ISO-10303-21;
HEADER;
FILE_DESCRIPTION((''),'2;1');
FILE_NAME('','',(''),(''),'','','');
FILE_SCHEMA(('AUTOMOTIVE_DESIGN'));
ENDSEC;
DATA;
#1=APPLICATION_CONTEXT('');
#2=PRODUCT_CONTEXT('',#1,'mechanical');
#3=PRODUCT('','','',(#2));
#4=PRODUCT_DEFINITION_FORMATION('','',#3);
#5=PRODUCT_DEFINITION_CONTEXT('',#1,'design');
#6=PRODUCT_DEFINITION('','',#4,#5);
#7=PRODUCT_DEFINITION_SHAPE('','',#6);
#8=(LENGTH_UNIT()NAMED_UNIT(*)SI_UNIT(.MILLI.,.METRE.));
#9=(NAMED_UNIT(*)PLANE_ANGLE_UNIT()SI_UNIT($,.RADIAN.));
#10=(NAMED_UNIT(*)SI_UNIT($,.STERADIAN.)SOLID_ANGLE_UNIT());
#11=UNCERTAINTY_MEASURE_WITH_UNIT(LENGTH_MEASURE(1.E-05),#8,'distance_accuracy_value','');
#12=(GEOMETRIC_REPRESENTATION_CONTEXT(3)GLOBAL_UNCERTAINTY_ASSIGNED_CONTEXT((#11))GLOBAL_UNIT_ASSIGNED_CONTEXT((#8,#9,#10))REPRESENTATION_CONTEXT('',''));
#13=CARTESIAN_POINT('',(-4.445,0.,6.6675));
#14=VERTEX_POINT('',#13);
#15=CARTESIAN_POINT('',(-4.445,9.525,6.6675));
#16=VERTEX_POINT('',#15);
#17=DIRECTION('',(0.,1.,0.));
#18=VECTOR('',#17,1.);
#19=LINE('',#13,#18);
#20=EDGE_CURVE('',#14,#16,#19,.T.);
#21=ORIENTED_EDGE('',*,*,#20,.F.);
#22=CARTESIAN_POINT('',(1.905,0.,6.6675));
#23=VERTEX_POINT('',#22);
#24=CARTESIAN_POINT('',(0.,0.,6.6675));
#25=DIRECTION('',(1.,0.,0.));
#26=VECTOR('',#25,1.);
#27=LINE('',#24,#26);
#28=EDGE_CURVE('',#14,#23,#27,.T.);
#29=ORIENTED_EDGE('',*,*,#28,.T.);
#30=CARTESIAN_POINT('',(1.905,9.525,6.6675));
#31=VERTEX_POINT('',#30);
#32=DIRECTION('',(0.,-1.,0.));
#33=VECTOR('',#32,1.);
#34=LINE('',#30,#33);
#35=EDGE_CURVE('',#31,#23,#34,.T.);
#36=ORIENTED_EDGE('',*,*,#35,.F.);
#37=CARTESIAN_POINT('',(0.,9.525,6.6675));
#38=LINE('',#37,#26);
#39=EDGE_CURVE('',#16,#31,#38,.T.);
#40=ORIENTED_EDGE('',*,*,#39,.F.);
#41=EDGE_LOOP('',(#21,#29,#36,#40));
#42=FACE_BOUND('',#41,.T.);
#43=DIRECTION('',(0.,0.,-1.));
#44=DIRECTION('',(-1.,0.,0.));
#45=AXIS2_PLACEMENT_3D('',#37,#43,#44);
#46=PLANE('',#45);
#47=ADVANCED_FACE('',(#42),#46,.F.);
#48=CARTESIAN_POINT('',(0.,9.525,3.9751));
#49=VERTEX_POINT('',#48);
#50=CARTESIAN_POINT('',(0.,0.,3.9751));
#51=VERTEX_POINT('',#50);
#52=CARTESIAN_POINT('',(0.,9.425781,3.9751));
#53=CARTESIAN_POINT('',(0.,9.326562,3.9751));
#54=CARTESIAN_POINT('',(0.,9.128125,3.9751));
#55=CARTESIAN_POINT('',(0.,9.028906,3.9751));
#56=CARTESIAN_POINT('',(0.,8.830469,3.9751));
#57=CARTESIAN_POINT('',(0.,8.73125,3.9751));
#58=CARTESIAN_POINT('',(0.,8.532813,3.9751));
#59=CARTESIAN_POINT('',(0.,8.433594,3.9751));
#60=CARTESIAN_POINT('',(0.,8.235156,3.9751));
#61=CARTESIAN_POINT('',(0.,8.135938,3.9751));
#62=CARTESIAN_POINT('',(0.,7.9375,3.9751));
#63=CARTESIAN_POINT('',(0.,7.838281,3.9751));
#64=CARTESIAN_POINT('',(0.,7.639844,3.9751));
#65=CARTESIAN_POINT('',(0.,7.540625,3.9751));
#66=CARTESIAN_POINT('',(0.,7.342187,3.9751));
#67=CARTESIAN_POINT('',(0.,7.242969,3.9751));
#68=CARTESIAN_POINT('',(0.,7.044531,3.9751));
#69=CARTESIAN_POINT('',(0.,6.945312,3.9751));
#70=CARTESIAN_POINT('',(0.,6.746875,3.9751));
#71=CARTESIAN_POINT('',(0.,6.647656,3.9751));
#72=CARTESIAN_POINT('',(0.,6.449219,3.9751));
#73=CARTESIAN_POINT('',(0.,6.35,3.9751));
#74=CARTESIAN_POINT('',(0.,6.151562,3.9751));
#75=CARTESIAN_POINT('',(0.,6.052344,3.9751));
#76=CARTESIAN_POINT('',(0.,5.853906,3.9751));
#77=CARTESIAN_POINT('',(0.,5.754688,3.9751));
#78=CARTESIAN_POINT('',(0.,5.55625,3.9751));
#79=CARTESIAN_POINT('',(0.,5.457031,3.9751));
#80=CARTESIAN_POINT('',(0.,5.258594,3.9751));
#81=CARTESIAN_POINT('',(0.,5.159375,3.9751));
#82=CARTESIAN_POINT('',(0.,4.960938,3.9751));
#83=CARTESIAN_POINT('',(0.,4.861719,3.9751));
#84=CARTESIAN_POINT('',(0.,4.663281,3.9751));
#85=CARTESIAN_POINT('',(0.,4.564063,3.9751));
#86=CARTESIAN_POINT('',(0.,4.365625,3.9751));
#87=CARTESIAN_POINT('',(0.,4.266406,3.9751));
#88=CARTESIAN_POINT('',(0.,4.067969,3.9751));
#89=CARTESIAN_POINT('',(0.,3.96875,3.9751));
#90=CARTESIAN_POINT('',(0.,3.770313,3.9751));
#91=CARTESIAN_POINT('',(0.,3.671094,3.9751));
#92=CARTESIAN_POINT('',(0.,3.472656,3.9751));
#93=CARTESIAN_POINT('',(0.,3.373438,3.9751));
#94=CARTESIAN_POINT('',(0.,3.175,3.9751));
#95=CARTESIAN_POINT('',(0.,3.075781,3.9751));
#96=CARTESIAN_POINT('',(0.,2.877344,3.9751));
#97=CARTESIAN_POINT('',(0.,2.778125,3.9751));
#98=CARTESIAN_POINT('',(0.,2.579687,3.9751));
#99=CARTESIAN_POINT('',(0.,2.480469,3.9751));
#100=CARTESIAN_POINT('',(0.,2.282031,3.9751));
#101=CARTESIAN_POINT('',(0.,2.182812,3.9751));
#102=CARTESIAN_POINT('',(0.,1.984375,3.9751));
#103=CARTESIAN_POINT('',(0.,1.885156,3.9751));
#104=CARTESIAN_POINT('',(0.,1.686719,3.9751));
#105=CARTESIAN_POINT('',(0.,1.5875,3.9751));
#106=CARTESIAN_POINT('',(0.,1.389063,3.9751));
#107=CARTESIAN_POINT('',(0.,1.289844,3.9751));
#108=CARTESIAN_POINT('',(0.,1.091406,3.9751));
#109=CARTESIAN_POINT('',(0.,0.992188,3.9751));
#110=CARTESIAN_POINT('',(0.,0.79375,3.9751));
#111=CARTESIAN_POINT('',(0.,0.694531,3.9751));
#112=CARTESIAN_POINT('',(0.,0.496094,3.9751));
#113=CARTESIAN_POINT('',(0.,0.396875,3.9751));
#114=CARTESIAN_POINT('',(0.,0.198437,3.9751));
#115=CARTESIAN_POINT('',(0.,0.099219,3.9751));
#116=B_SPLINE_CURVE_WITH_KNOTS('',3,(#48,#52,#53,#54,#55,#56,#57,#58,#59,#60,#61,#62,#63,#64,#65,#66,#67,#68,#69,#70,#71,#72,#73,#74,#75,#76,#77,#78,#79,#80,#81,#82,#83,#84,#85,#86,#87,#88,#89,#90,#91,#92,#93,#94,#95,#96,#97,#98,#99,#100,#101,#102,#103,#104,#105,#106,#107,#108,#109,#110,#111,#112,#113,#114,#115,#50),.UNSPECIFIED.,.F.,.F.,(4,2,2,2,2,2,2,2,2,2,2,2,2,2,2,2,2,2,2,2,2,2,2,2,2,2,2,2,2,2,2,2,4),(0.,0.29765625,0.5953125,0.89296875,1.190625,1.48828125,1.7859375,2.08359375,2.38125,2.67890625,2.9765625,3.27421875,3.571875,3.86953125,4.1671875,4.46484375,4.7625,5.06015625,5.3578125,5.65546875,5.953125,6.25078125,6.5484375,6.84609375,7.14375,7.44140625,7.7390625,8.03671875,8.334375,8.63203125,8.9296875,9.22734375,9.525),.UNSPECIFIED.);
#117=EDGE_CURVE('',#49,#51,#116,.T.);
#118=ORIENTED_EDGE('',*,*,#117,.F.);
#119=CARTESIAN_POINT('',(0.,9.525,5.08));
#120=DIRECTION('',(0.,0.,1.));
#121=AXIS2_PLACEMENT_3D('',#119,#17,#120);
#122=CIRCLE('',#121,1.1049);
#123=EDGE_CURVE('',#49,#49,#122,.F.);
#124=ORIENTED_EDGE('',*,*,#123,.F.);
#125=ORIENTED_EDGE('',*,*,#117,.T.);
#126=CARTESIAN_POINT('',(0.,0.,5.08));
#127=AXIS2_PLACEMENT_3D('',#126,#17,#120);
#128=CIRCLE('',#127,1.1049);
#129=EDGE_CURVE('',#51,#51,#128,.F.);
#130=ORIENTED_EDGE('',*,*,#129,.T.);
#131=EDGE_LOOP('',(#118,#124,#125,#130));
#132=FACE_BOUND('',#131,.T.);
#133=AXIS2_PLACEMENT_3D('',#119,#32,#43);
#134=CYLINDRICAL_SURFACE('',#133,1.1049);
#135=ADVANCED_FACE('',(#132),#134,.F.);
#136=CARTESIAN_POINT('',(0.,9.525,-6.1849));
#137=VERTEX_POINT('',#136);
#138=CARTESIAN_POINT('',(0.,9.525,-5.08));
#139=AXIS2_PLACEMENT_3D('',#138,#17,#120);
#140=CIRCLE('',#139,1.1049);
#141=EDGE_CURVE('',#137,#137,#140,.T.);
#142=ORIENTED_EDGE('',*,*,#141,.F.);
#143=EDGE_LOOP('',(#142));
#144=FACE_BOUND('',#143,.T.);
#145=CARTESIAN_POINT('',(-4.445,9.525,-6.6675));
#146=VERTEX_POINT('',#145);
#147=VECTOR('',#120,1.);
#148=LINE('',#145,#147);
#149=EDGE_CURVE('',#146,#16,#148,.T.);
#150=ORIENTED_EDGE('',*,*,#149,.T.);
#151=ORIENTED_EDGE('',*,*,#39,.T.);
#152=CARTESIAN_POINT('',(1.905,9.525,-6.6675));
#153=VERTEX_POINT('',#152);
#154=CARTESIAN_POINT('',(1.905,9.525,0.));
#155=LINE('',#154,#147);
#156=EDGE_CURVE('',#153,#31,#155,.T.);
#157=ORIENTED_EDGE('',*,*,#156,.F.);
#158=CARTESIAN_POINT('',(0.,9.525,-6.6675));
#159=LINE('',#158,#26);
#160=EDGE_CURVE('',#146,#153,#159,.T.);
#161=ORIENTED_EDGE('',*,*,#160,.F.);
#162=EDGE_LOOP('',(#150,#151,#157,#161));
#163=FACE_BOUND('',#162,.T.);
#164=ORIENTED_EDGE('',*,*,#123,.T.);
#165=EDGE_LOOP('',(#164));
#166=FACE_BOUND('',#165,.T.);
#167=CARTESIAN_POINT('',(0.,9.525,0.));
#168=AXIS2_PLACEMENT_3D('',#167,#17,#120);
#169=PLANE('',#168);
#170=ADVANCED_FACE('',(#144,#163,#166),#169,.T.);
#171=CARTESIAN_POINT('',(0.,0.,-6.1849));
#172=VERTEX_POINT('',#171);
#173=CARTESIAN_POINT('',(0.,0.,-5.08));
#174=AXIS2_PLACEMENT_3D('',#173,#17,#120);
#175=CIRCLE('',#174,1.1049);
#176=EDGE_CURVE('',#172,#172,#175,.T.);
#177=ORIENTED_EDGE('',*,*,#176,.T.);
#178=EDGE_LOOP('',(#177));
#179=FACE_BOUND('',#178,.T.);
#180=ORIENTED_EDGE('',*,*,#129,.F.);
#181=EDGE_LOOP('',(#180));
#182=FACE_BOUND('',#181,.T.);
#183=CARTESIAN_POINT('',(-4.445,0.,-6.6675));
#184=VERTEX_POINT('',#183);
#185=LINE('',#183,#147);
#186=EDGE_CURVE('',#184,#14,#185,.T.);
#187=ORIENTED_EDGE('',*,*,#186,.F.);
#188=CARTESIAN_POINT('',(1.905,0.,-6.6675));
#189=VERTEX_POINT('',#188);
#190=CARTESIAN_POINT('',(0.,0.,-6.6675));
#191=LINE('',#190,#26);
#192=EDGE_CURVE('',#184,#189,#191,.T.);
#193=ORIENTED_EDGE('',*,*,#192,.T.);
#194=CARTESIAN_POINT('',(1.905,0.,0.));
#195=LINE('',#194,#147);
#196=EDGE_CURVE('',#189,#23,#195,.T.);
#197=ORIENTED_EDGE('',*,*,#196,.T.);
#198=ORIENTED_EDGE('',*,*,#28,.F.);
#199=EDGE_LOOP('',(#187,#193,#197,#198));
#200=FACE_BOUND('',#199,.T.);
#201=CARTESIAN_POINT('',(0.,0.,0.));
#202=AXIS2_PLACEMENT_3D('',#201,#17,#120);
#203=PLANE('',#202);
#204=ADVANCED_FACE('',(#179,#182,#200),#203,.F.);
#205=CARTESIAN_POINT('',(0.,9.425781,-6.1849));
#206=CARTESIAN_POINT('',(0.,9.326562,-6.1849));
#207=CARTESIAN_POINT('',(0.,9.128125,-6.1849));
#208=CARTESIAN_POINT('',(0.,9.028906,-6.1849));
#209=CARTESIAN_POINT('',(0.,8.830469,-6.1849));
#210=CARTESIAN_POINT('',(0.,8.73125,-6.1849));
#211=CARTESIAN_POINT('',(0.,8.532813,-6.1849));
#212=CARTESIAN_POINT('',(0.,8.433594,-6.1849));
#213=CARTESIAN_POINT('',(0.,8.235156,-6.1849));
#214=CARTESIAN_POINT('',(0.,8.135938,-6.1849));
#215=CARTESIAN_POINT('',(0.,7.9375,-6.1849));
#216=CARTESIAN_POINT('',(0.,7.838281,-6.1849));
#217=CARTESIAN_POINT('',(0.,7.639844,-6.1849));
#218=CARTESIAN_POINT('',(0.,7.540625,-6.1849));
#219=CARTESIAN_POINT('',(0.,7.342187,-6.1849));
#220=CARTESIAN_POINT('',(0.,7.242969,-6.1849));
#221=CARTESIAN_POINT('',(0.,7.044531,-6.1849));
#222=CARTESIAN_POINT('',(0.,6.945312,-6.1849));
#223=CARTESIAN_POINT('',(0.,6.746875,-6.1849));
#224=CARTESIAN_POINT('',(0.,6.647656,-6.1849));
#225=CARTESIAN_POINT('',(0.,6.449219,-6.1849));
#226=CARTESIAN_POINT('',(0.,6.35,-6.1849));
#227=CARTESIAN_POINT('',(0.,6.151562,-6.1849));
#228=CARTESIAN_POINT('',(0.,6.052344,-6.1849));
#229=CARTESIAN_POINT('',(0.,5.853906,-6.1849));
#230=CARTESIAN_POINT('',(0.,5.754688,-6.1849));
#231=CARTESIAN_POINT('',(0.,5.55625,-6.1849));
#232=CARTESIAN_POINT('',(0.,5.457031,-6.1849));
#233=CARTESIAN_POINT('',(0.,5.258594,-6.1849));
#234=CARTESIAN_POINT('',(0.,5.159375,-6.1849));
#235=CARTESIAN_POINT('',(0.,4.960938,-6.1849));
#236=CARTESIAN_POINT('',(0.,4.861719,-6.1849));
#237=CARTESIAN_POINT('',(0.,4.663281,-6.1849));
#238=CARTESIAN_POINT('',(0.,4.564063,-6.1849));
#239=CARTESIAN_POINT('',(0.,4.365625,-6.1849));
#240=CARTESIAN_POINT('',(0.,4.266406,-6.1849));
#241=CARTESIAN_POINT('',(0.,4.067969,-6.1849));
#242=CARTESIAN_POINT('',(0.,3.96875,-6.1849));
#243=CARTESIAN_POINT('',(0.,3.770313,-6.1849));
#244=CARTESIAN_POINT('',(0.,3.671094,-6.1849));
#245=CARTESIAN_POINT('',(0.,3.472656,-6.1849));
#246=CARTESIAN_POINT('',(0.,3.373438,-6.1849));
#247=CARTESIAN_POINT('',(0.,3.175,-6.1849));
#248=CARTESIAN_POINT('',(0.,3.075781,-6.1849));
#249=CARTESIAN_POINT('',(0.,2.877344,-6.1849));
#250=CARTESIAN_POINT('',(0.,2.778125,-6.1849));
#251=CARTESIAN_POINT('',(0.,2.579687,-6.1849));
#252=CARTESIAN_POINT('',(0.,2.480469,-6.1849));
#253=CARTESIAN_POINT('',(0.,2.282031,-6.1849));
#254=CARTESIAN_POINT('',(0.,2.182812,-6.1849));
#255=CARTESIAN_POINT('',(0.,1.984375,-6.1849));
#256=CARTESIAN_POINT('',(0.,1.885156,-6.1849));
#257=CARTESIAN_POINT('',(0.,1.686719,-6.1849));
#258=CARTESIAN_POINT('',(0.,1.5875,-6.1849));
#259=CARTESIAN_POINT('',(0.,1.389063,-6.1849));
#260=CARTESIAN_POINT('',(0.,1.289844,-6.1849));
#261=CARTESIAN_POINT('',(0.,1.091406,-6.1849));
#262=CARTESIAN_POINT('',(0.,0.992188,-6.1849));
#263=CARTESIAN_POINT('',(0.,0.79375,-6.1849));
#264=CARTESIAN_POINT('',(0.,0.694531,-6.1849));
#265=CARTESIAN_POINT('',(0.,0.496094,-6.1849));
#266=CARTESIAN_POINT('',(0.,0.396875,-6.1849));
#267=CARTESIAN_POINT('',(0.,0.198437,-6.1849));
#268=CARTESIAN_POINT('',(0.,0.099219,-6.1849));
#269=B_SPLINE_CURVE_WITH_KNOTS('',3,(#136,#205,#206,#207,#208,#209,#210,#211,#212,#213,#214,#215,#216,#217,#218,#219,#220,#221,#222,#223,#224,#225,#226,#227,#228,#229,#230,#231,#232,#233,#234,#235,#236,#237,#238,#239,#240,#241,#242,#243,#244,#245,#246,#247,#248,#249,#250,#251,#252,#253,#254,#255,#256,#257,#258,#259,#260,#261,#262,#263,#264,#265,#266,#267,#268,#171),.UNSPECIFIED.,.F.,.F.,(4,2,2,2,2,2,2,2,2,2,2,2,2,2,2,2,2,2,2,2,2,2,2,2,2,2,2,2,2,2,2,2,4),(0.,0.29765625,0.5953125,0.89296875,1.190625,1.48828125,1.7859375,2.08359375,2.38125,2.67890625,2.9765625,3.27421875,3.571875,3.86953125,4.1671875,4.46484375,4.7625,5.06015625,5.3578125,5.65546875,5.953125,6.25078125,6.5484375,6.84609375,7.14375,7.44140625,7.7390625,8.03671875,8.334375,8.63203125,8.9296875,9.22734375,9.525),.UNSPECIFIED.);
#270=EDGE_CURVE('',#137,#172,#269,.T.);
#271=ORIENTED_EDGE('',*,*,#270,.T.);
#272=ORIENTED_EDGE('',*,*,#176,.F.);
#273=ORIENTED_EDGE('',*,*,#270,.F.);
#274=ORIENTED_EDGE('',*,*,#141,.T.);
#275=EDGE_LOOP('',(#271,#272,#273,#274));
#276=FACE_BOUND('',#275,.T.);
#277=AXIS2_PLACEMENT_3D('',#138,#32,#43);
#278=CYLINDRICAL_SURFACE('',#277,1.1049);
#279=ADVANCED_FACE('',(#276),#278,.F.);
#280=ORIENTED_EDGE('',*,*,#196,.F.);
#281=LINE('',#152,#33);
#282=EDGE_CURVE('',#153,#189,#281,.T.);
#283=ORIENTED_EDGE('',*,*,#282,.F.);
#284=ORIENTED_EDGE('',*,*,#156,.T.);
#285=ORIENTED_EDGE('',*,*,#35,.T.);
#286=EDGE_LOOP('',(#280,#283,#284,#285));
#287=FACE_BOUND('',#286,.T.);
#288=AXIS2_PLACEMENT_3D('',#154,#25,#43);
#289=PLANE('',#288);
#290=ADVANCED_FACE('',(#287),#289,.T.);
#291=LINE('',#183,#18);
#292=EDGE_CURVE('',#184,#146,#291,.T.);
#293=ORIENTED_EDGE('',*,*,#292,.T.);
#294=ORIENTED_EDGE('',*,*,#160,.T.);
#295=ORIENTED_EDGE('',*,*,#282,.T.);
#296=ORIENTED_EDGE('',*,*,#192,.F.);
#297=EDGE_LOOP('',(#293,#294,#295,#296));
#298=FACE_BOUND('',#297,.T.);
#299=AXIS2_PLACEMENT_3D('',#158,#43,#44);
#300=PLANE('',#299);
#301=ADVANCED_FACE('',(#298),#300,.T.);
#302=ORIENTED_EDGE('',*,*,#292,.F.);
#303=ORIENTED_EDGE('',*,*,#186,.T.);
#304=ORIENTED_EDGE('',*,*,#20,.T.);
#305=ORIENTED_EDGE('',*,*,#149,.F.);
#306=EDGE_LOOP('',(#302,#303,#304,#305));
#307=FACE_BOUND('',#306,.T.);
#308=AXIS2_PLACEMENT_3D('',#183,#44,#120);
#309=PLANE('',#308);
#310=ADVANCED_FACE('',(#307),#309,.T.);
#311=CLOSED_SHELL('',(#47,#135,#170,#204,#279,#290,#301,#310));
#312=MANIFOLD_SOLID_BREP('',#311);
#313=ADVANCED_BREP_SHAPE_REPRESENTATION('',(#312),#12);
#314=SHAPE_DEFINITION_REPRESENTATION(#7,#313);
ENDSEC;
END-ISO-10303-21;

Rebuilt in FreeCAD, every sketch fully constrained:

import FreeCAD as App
import Part
import Sketcher

V = App.Vector
Q = App.Units.Quantity


def add_polygon(sketch, points):
    """Adds a closed chain of lines whose ends are joined by coincident constraints."""
    first, n = sketch.GeometryCount, len(points)
    for a, b in zip(points, points[1:] + points[:1]):
        sketch.addGeometry(Part.LineSegment(App.Vector(*a, 0), App.Vector(*b, 0)), False)
    for i in range(n):
        sketch.addConstraint(Sketcher.Constraint("Coincident", first + i, 2, first + (i + 1) % n, 1))

doc = App.newDocument("Part")
params = doc.addObject("Spreadsheet::Sheet", "Params")
for row, (alias, value) in enumerate([
    ("sketch1_diameter", "0.087 in"),
    ("sketch1_width", "0.15 in"),
    ("sketch1_height", "0.525 in"),
    ("pad1_length", "0.375 in"),
    ("sketch2_width", "0.1 in"),
    ("sketch2_height", "0.525 in"),
    ("pad2_length", "0.375 in"),
], start=1):
    params.set(f"A{row}", alias)
    params.set(f"B{row}", "=" + value)
    params.setAlias(f"B{row}", alias)

body = doc.addObject("PartDesign::Body", "Body")

# Sketch on XZ plane
sketch1 = body.newObject("Sketcher::SketchObject", "Sketch")
sketch1.AttachmentSupport = (doc.getObject("XZ_Plane"), [""])
sketch1.MapMode = "FlatFace"
add_polygon(sketch1, [(-1.9, -6.7), (-1.9, 6.7), (1.9, 6.7), (1.9, -6.7)])  # lines 0-3
sketch1.addGeometry(Part.Circle(V(0, 5.1, 0), V(0, 0, 1), 1.1), False)  # 4
sketch1.addGeometry(Part.Circle(V(0, -5.1, 0), V(0, 0, 1), 1.1), False)  # 5
sketch1.addConstraint(Sketcher.Constraint("Vertical", 0))
sketch1.addConstraint(Sketcher.Constraint("Horizontal", 1))
sketch1.addConstraint(Sketcher.Constraint("Vertical", 2))
sketch1.addConstraint(Sketcher.Constraint("Horizontal", 3))
sketch1.addConstraint(Sketcher.Constraint("Equal", 4, 5))
sketch1.addConstraint(Sketcher.Constraint("Symmetric", 4, 3, 5, 3, -1, 1))
sketch1.addConstraint(Sketcher.Constraint("Symmetric", 0, 2, 2, 2, -1, 1))
sketch1.addConstraint(Sketcher.Constraint("PointOnObject", 4, 3, -2))
sketch1.addConstraint(Sketcher.Constraint("Diameter", 4, Q("0.087 in")))
sketch1.addConstraint(Sketcher.Constraint("DistanceX", 1, 1, 1, 2, Q("0.15 in")))
sketch1.addConstraint(Sketcher.Constraint("DistanceY", -1, 1, 4, 3, Q("0.2 in")))
sketch1.addConstraint(Sketcher.Constraint("DistanceY", 0, 1, 0, 2, Q("0.525 in")))
sketch1.setExpression("Constraints[12]", "Params.sketch1_diameter")
sketch1.setExpression("Constraints[13]", "Params.sketch1_width")
sketch1.setExpression("Constraints[15]", "Params.sketch1_height")
pad1 = body.newObject("PartDesign::Pad", "Pad")
pad1.Profile = sketch1
pad1.setExpression("Length", "Params.pad1_length")
pad1.Reversed = True

# Sketch on XZ plane
sketch2 = body.newObject("Sketcher::SketchObject", "Sketch001")
sketch2.AttachmentSupport = (doc.getObject("XZ_Plane"), [""])
sketch2.MapMode = "FlatFace"
sketch2.AttachmentOffset = App.Placement(V(0, 0, -0.375 * 25.4), App.Rotation())
add_polygon(sketch2, [(-4.4, -6.7), (-4.4, 6.7), (-1.9, 6.7), (-1.9, -6.7)])  # lines 0-3
sketch2.addConstraint(Sketcher.Constraint("Vertical", 0))
sketch2.addConstraint(Sketcher.Constraint("Horizontal", 1))
sketch2.addConstraint(Sketcher.Constraint("Vertical", 2))
sketch2.addConstraint(Sketcher.Constraint("Horizontal", 3))
sketch2.addConstraint(Sketcher.Constraint("DistanceX", 1, 1, 1, 2, Q("0.1 in")))
sketch2.addConstraint(Sketcher.Constraint("DistanceY", 0, 1, 0, 2, Q("0.525 in")))
sketch2.addConstraint(Sketcher.Constraint("DistanceX", 0, 2, -1, 1, Q("0.175 in")))
sketch2.addConstraint(Sketcher.Constraint("DistanceY", -1, 1, 0, 2, Q("0.2625 in")))
sketch2.setExpression("Constraints[8]", "Params.sketch2_width")
sketch2.setExpression("Constraints[9]", "Params.sketch2_height")
pad2 = body.newObject("PartDesign::Pad", "Pad001")
pad2.Profile = sketch2
pad2.setExpression("Length", "Params.pad2_length")

doc.recompute()
